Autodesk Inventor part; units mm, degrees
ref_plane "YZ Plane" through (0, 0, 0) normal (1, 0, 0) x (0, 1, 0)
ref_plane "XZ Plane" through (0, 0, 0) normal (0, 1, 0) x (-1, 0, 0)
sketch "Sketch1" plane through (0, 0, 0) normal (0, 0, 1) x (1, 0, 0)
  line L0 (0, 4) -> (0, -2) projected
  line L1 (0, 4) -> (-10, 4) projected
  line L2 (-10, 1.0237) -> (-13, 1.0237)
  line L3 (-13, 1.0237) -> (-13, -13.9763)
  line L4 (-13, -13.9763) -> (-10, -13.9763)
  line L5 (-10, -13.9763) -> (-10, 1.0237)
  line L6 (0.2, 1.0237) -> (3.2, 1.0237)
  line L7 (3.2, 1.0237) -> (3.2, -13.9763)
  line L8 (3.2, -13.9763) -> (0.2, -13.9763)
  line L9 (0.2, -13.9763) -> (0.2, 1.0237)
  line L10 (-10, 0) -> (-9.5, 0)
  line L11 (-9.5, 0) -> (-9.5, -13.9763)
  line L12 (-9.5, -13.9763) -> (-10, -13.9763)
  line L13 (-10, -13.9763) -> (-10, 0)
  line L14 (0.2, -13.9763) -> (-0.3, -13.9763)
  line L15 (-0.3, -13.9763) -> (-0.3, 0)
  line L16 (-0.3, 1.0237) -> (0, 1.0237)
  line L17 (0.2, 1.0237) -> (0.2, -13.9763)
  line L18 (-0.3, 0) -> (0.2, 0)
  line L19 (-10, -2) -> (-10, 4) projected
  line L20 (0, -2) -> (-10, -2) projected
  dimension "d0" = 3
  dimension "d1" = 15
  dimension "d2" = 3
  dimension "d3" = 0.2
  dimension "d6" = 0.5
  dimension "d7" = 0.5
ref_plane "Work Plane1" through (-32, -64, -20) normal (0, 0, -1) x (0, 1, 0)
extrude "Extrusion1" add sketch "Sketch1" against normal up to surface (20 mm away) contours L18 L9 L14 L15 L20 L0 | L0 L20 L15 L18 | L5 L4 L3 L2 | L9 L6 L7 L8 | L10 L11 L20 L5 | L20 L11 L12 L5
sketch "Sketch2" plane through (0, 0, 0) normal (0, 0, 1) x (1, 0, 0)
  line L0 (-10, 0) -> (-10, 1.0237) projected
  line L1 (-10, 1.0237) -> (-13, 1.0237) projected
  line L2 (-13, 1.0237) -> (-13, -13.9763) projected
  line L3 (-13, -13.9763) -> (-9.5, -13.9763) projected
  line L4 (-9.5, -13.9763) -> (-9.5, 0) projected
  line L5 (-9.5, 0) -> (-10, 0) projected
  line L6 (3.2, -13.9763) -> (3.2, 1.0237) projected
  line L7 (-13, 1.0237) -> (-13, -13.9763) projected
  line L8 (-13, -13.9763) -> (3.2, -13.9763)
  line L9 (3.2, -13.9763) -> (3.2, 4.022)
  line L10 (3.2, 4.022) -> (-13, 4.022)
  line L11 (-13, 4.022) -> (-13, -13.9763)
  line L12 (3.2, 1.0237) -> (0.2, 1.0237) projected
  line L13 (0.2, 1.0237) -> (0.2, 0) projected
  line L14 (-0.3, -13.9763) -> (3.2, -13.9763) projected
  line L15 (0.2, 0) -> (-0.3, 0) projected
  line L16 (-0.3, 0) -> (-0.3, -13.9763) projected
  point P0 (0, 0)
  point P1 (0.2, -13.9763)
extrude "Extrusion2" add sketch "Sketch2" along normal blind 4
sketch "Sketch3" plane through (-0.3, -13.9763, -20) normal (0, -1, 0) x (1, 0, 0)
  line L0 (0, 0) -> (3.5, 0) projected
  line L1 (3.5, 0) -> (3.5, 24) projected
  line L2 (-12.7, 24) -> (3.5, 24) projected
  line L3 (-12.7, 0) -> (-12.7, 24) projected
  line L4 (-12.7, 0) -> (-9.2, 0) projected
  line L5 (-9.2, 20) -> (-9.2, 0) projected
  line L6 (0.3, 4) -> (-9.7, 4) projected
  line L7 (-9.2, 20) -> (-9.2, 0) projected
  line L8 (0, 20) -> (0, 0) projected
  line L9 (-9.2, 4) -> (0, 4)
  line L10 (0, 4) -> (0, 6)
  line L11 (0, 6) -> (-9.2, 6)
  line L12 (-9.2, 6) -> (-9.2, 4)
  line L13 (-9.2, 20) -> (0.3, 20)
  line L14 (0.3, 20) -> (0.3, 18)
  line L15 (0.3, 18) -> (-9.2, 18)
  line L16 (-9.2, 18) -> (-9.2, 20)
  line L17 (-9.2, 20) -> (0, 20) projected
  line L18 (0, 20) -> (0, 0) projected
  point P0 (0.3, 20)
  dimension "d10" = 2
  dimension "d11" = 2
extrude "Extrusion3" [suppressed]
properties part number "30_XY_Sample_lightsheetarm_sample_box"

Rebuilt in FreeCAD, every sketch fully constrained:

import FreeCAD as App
import Part
import Sketcher
from FreeCAD import Vector


def add_polygon(sketch, points):
    """Adds a closed chain of lines whose ends are joined by coincident constraints."""
    first, n = sketch.GeometryCount, len(points)
    for a, b in zip(points, points[1:] + points[:1]):
        sketch.addGeometry(Part.LineSegment(App.Vector(*a, 0), App.Vector(*b, 0)), False)
    for i in range(n):
        sketch.addConstraint(Sketcher.Constraint("Coincident", first + i, 2, first + (i + 1) % n, 1))

doc = App.newDocument("Part")
body = doc.addObject("PartDesign::Body", "Body")
body.AllowCompound = True

# Sketch on XY plane
sketch1 = body.newObject("Sketcher::SketchObject", "Sketch")
sketch1.AttachmentSupport = (doc.getObject("XY_Plane"), [""])
sketch1.MapMode = "FlatFace"
add_polygon(sketch1, [(0.2, 0), (-0.3, 0), (-0.3, -14), (3.2, -14), (3.2, 1), (0.2, 1)])  # lines 0-5
add_polygon(sketch1, [(-10, 0), (-10, 1), (-13, 1), (-13, -14), (-9.5, -14), (-9.5, 0)])  # lines 6-11
sketch1.addConstraint(Sketcher.Constraint("Horizontal", 0))
sketch1.addConstraint(Sketcher.Constraint("Vertical", 1))
sketch1.addConstraint(Sketcher.Constraint("Horizontal", 2))
sketch1.addConstraint(Sketcher.Constraint("Vertical", 3))
sketch1.addConstraint(Sketcher.Constraint("Horizontal", 4))
sketch1.addConstraint(Sketcher.Constraint("Vertical", 5))
sketch1.addConstraint(Sketcher.Constraint("Vertical", 6))
sketch1.addConstraint(Sketcher.Constraint("Horizontal", 7))
sketch1.addConstraint(Sketcher.Constraint("Vertical", 8))
sketch1.addConstraint(Sketcher.Constraint("Horizontal", 9))
sketch1.addConstraint(Sketcher.Constraint("Vertical", 10))
sketch1.addConstraint(Sketcher.Constraint("Horizontal", 11))
sketch1.addConstraint(Sketcher.Constraint("PointOnObject", 0, 2, -1))
sketch1.addConstraint(Sketcher.Constraint("PointOnObject", 10, 2, -1))
sketch1.addConstraint(Sketcher.Constraint("Horizontal", 4, 2, 6, 2))
sketch1.addConstraint(Sketcher.Constraint("Horizontal", 2, 2, 8, 2))
sketch1.addConstraint(Sketcher.Constraint("Equal", 4, 7))
sketch1.addConstraint(Sketcher.Constraint("Equal", 2, 9))
sketch1.addConstraint(Sketcher.Constraint("DistanceX", 4, 2, 4, 1, 3.0))
sketch1.addConstraint(Sketcher.Constraint("DistanceY", 3, 1, 3, 2, 15.0))
sketch1.addConstraint(Sketcher.Constraint("DistanceX", 0, 2, 0, 1, 0.5))
sketch1.addConstraint(Sketcher.Constraint("DistanceX", -1, 1, 4, 2, 0.2))
sketch1.addConstraint(Sketcher.Constraint("DistanceX", 6, 2, -1, 1, 10.0))
sketch1.addConstraint(Sketcher.Constraint("DistanceY", 1, 2, 1, 1, 13.9763))
pad1 = body.newObject("PartDesign::Pad", "Pad")
pad1.Profile = sketch1
pad1.Length = 20
pad1.Reversed = True

# Sketch on XY plane
sketch2 = body.newObject("Sketcher::SketchObject", "Sketch001")
sketch2.AttachmentSupport = (doc.getObject("XY_Plane"), [""])
sketch2.MapMode = "FlatFace"
add_polygon(sketch2, [(-13, -14), (3, -14), (3, 4), (-13, 4)])  # lines 0-3
sketch2.addConstraint(Sketcher.Constraint("Horizontal", 0))
sketch2.addConstraint(Sketcher.Constraint("Vertical", 1))
sketch2.addConstraint(Sketcher.Constraint("Horizontal", 2))
sketch2.addConstraint(Sketcher.Constraint("Vertical", 3))
sketch2.addConstraint(Sketcher.Constraint("DistanceX", 0, 1, 0, 2, 16.2))
sketch2.addConstraint(Sketcher.Constraint("DistanceX", 2, 2, -1, 1, 13.0))
sketch2.addConstraint(Sketcher.Constraint("DistanceY", 1, 1, 1, 2, 17.9983))
sketch2.addConstraint(Sketcher.Constraint("DistanceY", -1, 1, 1, 2, 4.022))
pad2 = body.newObject("PartDesign::Pad", "Pad001")
pad2.Profile = sketch2
pad2.Length = 4

doc.recompute()
